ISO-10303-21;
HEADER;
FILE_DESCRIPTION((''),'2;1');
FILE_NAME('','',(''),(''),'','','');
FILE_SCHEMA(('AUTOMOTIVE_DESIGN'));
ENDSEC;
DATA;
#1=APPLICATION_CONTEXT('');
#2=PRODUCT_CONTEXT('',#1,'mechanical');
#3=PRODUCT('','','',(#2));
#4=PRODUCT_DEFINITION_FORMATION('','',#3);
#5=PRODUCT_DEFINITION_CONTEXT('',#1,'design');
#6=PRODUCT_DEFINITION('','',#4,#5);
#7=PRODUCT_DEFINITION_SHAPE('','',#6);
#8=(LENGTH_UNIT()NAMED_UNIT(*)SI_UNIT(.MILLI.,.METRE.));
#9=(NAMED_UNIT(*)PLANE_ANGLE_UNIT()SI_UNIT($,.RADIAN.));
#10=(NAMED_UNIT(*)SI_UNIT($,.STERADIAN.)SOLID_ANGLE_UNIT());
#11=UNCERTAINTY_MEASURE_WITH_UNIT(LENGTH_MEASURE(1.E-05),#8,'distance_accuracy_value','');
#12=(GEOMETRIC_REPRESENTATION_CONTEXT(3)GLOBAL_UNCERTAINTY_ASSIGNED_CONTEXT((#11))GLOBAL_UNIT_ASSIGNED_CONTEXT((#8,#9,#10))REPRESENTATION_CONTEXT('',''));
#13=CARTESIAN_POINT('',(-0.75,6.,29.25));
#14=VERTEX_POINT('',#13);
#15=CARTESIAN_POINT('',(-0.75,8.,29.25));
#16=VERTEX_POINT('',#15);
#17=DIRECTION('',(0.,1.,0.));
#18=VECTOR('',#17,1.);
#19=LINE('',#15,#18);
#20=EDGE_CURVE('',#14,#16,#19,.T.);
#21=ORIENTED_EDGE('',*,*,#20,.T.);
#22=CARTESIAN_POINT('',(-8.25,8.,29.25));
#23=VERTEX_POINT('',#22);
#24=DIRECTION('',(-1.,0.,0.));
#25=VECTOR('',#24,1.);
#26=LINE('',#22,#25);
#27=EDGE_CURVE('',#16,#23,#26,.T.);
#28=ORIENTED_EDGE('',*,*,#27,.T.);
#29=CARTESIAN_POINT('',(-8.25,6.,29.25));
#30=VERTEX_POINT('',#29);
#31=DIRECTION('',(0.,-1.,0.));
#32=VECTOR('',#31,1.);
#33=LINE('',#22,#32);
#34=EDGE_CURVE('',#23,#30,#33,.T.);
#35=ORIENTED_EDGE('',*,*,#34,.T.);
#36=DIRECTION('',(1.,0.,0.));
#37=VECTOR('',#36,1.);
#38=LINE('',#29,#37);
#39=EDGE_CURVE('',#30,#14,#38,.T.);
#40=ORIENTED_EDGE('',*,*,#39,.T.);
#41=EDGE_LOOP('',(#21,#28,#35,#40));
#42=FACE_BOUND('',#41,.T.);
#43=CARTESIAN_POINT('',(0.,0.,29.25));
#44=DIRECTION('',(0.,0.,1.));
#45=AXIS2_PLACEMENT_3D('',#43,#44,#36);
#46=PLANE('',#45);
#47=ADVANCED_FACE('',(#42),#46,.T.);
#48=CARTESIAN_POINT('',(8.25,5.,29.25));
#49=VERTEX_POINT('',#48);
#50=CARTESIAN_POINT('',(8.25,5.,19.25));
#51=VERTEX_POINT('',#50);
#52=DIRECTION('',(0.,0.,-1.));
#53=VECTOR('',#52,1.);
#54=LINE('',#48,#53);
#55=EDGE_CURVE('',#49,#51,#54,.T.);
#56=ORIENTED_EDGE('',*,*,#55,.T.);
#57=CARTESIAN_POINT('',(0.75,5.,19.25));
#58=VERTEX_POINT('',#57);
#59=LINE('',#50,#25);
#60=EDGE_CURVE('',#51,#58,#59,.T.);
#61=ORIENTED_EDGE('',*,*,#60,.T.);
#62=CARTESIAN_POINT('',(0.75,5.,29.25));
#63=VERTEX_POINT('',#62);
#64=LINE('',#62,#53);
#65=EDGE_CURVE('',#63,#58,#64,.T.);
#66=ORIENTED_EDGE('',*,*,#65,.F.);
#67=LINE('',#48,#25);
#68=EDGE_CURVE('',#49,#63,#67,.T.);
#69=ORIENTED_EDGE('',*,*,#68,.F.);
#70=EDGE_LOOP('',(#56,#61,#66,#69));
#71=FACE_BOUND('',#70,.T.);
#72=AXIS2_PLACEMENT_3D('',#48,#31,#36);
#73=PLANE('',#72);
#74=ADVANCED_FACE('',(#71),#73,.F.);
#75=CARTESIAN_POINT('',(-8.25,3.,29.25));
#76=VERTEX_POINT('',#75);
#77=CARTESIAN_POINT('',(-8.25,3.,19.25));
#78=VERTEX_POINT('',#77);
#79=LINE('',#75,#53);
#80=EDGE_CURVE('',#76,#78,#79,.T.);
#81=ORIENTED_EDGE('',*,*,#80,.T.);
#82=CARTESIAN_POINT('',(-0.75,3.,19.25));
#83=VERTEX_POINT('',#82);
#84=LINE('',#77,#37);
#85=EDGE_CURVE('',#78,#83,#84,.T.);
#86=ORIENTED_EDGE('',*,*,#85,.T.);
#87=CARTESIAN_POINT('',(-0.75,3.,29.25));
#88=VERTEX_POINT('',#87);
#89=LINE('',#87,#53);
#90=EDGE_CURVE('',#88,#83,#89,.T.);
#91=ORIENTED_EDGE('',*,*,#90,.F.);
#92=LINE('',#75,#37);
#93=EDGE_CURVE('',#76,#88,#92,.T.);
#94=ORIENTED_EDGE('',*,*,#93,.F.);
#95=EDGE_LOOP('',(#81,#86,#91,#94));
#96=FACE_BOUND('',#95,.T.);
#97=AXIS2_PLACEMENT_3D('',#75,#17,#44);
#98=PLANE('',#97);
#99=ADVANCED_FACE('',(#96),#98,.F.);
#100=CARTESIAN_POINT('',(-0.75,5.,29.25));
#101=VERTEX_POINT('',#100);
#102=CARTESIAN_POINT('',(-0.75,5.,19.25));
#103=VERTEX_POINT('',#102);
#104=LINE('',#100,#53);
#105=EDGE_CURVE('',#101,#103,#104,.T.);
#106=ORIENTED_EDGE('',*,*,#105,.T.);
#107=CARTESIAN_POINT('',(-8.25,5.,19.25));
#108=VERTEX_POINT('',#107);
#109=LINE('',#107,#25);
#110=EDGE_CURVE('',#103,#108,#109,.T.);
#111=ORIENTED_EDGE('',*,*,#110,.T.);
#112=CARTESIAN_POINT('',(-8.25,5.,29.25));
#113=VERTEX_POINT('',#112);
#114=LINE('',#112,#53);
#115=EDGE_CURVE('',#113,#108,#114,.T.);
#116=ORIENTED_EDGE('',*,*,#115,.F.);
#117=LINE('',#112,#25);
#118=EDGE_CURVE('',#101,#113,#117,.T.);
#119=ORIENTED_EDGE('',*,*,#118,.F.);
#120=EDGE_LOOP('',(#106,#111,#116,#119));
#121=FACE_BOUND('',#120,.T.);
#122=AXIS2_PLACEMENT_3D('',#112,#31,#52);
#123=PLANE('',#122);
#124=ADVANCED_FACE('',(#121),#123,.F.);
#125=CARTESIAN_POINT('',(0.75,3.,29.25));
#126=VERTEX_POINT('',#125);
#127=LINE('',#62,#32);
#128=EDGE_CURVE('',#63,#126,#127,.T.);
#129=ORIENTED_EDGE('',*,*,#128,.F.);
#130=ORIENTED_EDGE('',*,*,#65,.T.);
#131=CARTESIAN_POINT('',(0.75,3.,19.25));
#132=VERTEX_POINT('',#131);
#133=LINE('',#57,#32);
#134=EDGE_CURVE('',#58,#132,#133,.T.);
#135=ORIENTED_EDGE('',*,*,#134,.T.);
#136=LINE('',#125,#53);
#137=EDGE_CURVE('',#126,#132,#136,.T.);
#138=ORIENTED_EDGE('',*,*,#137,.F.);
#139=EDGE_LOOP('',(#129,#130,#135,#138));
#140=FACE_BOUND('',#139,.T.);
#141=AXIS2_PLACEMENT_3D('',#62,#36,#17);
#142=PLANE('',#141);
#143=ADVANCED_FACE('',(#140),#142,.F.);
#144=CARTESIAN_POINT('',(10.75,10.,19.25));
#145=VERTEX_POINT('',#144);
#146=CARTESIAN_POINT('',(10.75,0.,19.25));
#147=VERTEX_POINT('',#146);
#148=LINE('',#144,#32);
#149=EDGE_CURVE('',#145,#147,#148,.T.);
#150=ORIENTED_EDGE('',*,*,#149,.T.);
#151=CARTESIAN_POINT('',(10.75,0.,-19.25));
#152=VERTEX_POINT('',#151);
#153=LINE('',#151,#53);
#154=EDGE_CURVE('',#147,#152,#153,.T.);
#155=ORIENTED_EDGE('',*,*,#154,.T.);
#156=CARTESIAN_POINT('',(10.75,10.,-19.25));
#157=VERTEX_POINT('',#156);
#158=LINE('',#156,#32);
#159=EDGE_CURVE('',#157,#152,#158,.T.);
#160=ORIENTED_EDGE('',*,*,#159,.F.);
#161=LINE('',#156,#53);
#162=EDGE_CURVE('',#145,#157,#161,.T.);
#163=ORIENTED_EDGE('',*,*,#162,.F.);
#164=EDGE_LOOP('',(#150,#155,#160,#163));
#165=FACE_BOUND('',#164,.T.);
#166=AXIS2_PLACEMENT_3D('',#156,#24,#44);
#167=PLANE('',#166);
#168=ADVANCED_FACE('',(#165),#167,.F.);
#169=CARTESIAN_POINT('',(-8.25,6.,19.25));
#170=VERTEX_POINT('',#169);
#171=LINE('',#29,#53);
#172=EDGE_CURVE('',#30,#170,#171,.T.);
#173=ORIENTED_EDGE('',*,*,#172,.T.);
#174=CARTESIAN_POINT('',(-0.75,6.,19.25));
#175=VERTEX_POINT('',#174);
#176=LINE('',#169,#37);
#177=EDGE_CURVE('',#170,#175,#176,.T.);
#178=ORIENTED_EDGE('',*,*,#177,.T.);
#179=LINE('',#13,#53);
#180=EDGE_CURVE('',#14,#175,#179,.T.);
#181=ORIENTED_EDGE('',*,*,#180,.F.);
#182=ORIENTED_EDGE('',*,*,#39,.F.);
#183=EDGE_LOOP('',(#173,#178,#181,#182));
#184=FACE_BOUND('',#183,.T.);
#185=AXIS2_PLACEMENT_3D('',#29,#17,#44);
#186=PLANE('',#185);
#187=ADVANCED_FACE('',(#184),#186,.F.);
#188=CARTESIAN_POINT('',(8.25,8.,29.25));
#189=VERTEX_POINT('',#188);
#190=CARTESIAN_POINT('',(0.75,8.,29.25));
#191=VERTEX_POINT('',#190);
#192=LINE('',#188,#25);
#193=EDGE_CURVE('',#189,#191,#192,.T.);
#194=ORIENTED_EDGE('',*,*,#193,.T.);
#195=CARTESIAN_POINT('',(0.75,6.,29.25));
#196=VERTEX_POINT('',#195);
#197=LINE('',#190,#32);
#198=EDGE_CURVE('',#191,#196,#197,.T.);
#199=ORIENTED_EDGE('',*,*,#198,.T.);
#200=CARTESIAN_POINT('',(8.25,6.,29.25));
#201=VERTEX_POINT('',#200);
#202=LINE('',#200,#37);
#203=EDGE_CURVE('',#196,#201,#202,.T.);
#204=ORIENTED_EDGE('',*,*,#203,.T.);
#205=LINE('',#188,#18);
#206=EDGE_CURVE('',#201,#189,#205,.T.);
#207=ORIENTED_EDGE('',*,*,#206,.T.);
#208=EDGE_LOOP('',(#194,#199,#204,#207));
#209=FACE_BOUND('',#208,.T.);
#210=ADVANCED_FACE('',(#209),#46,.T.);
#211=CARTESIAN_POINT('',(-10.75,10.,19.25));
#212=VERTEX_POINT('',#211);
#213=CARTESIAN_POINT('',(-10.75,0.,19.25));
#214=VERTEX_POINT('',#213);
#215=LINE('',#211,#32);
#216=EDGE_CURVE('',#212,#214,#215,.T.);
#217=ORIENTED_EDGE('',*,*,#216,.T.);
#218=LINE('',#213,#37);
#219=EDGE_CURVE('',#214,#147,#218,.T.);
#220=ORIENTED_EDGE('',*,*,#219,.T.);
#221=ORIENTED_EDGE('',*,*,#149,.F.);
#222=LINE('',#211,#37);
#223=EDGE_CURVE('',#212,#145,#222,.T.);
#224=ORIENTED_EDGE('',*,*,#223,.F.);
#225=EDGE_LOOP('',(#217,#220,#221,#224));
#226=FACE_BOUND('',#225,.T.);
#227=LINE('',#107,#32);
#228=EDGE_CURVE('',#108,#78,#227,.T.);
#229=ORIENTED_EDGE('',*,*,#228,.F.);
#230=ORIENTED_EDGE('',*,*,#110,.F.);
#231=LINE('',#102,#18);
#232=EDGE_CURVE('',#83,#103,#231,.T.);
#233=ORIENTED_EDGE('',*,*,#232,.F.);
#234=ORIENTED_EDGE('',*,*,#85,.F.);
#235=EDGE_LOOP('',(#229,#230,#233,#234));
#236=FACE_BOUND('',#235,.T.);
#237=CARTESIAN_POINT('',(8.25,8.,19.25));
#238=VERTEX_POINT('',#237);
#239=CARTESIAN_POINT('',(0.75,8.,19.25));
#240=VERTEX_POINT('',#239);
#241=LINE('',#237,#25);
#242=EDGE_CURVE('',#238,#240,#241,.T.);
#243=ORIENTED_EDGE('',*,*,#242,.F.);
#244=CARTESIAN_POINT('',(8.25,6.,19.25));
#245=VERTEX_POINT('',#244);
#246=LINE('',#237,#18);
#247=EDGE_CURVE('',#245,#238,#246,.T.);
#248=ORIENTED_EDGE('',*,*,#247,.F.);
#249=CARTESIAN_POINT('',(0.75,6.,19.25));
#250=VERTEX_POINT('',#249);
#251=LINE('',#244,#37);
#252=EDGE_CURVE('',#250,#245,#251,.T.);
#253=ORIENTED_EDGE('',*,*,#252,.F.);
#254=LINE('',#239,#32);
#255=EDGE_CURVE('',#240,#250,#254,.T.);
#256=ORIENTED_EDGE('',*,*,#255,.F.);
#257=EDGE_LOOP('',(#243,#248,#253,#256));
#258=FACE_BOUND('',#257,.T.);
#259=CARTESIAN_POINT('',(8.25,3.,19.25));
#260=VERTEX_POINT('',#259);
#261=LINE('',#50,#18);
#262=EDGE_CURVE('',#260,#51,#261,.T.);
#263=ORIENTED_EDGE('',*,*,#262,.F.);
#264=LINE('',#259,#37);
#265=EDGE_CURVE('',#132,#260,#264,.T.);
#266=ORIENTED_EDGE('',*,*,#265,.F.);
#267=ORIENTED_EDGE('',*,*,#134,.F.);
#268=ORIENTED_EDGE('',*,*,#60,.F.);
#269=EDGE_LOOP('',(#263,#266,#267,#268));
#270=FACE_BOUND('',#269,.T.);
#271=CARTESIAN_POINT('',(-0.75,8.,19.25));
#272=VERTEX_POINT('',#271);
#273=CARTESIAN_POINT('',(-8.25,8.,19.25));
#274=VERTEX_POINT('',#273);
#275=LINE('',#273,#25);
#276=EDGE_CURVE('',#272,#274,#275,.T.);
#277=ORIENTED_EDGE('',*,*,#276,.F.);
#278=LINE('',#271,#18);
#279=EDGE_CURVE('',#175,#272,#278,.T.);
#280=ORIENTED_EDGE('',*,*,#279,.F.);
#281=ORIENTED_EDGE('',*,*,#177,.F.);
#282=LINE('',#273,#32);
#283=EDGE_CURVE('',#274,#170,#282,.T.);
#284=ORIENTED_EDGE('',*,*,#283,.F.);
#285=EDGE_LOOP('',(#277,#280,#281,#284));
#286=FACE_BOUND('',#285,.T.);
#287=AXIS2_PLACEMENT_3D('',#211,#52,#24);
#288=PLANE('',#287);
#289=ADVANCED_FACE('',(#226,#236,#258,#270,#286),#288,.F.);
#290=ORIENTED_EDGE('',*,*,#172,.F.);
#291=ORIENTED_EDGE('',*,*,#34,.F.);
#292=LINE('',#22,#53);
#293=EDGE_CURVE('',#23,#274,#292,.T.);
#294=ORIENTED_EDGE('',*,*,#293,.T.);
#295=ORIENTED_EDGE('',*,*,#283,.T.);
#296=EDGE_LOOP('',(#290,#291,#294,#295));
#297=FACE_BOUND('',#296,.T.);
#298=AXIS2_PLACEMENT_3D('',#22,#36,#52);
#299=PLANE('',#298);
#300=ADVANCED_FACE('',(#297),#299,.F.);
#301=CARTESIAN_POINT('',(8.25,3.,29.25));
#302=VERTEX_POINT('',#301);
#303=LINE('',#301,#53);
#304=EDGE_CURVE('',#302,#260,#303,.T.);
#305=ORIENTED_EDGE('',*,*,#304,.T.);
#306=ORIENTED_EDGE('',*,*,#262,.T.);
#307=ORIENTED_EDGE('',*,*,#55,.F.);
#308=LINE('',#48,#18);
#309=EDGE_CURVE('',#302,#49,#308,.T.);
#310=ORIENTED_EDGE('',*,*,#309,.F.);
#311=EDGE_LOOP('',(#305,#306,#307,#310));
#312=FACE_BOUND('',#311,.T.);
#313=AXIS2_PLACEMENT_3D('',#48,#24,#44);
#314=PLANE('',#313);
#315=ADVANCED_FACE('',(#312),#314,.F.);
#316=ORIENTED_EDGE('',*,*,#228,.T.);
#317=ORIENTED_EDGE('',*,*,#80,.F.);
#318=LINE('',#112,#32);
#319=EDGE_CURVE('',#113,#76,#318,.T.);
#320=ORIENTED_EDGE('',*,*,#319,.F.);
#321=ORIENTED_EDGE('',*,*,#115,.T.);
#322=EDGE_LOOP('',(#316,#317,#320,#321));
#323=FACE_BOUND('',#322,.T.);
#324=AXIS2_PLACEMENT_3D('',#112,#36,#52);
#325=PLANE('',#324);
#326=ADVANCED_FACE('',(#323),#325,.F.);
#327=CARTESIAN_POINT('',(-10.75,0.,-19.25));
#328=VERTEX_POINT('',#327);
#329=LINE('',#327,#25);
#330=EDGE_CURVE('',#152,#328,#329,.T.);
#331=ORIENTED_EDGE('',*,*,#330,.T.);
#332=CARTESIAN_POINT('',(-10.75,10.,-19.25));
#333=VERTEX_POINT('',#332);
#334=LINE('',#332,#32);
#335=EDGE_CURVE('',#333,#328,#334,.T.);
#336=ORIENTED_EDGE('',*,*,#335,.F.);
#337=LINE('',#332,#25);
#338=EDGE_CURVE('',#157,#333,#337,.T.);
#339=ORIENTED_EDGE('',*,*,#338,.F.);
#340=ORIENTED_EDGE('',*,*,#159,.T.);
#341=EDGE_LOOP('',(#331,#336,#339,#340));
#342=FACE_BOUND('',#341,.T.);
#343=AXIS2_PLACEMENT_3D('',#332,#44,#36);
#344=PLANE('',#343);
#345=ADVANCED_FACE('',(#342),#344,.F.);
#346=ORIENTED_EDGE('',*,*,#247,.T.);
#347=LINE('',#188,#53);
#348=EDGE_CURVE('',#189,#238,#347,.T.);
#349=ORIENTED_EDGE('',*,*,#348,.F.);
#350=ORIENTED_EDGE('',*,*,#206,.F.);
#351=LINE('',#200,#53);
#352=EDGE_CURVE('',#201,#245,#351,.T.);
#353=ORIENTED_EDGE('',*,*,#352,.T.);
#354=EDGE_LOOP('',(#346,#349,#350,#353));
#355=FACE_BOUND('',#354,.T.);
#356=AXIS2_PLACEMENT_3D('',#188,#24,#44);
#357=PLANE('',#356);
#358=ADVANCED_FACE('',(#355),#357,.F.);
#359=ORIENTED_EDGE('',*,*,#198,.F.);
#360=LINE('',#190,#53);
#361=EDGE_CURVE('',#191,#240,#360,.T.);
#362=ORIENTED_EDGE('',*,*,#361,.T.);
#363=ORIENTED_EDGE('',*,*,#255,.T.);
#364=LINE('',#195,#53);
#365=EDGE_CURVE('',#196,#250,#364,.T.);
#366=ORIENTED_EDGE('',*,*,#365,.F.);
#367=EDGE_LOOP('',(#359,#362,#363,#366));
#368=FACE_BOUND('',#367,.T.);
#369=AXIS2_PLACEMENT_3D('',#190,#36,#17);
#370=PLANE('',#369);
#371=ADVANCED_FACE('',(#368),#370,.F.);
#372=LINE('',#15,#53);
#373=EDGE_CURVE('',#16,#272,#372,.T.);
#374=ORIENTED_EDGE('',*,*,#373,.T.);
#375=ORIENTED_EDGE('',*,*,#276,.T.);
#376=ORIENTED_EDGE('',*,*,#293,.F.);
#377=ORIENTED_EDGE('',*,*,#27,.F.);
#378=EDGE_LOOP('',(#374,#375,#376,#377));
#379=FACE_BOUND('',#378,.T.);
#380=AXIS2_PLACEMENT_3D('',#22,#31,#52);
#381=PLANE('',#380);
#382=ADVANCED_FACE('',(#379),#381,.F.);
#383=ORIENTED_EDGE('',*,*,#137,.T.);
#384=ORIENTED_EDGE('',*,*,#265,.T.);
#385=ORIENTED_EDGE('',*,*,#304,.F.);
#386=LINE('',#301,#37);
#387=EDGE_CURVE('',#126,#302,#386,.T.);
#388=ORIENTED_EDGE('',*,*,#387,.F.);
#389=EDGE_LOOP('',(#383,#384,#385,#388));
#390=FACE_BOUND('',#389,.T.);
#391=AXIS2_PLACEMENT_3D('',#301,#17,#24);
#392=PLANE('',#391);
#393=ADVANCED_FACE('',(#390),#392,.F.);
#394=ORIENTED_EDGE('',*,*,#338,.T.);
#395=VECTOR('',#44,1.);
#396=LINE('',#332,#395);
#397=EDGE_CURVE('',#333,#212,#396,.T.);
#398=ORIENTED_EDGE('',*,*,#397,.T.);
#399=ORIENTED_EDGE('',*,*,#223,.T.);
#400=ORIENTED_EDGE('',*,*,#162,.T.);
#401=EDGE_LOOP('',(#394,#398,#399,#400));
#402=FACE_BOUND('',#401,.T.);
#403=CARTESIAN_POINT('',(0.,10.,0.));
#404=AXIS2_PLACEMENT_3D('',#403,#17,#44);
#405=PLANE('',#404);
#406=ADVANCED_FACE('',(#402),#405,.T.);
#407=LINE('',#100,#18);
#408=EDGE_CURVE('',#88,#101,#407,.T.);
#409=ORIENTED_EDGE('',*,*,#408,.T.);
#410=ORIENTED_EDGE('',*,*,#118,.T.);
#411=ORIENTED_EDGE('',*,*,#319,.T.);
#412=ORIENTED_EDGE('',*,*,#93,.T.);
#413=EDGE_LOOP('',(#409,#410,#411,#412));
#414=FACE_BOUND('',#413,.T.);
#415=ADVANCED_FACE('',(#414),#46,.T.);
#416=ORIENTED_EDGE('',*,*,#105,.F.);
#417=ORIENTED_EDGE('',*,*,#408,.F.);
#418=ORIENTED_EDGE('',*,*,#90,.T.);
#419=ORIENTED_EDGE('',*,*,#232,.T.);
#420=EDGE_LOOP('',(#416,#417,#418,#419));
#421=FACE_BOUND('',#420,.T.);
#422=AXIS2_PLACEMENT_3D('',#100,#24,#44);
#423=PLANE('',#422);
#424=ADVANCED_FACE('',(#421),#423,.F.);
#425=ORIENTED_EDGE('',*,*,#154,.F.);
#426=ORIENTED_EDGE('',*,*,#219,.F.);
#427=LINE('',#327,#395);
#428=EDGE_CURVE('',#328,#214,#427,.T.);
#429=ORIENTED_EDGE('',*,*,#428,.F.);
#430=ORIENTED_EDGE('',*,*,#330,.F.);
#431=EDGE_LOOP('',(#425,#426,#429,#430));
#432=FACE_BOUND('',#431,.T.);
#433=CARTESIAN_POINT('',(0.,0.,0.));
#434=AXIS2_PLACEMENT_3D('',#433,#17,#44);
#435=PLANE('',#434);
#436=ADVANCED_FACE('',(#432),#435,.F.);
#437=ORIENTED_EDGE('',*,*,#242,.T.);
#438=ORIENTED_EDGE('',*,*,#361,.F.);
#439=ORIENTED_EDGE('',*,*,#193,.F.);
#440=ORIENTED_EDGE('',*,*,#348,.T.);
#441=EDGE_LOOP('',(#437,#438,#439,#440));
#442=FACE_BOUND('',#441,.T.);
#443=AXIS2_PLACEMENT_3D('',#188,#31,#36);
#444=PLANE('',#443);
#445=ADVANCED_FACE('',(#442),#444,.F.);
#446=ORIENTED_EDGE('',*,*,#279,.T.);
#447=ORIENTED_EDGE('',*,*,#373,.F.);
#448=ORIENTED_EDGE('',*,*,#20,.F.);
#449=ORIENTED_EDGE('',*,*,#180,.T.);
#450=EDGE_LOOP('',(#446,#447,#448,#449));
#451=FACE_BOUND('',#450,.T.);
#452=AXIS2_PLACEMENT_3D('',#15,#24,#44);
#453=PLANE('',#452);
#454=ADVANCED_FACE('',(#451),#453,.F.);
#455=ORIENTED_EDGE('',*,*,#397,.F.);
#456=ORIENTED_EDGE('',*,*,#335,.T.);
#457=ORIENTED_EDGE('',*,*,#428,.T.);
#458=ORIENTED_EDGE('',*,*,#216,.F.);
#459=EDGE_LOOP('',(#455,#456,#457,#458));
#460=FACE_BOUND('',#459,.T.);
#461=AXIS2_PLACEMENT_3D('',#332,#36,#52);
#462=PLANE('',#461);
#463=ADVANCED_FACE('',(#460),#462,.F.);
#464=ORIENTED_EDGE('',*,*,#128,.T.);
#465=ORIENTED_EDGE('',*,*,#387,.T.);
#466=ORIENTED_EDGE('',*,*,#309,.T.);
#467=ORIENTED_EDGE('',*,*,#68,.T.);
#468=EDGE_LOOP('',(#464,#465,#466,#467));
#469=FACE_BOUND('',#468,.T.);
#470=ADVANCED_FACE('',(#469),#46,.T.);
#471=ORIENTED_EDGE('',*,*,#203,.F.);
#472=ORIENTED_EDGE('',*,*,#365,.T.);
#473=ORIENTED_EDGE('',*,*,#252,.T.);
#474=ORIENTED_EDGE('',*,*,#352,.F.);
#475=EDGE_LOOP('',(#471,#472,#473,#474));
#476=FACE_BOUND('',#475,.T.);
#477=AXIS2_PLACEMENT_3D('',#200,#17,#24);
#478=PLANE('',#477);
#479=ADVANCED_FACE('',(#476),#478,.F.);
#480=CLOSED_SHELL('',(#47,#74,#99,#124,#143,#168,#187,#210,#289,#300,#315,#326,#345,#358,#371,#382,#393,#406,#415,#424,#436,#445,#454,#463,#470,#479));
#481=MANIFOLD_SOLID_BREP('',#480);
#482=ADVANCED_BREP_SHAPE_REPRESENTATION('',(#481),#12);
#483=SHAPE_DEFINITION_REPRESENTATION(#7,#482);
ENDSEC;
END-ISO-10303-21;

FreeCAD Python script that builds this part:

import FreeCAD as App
import Part
import Sketcher
from FreeCAD import Vector


def add_polygon(sketch, points):
    """Adds a closed chain of lines whose ends are joined by coincident constraints."""
    first, n = sketch.GeometryCount, len(points)
    for a, b in zip(points, points[1:] + points[:1]):
        sketch.addGeometry(Part.LineSegment(App.Vector(*a, 0), App.Vector(*b, 0)), False)
    for i in range(n):
        sketch.addConstraint(Sketcher.Constraint("Coincident", first + i, 2, first + (i + 1) % n, 1))

doc = App.newDocument("Part")
body = doc.addObject("PartDesign::Body", "Body")

sketch1 = body.newObject("Sketcher::SketchObject", "Sketch")
sketch1.AttachmentSupport = (doc.getObject("XZ_Plane"), [""])
sketch1.MapMode = "FlatFace"
add_polygon(sketch1, [(-11, -19), (-11, 19), (11, 19), (11, -19)])
sketch1.addConstraint(Sketcher.Constraint("Vertical", 0))
sketch1.addConstraint(Sketcher.Constraint("Horizontal", 1))
sketch1.addConstraint(Sketcher.Constraint("Vertical", 2))
sketch1.addConstraint(Sketcher.Constraint("Horizontal", 3))
sketch1.addConstraint(Sketcher.Constraint("Symmetric", 0, 2, 2, 2, -1, 1))
sketch1.addConstraint(Sketcher.Constraint("DistanceX", 1, 1, 1, 2, 21.5))
sketch1.addConstraint(Sketcher.Constraint("DistanceY", 0, 1, 0, 2, 38.5))
pad1 = body.newObject("PartDesign::Pad", "Pad")
pad1.Profile = sketch1
pad1.Length = 10
pad1.Reversed = True

sketch2 = body.newObject("Sketcher::SketchObject", "Sketch001")
sketch2.AttachmentSupport = (doc.getObject("XY_Plane"), [""])
sketch2.MapMode = "FlatFace"
sketch2.AttachmentOffset = App.Placement(Vector(0, 0, 19.25), App.Rotation())
add_polygon(sketch2, [(-8.2, 8), (-8.2, 6), (-0.8, 6), (-0.8, 8)])
add_polygon(sketch2, [(0.8, 5), (0.8, 3), (8.2, 3), (8.2, 5)])
add_polygon(sketch2, [(-8.2, 5), (-8.2, 3), (-0.8, 3), (-0.8, 5)])
add_polygon(sketch2, [(0.8, 8), (0.8, 6), (8.2, 6), (8.2, 8)])
sketch2.addConstraint(Sketcher.Constraint("Vertical", 0))
sketch2.addConstraint(Sketcher.Constraint("Horizontal", 1))
sketch2.addConstraint(Sketcher.Constraint("Vertical", 2))
sketch2.addConstraint(Sketcher.Constraint("Horizontal", 3))
sketch2.addConstraint(Sketcher.Constraint("Vertical", 4))
sketch2.addConstraint(Sketcher.Constraint("Horizontal", 5))
sketch2.addConstraint(Sketcher.Constraint("Vertical", 6))
sketch2.addConstraint(Sketcher.Constraint("Horizontal", 7))
sketch2.addConstraint(Sketcher.Constraint("Vertical", 8))
sketch2.addConstraint(Sketcher.Constraint("Horizontal", 9))
sketch2.addConstraint(Sketcher.Constraint("Vertical", 10))
sketch2.addConstraint(Sketcher.Constraint("Horizontal", 11))
sketch2.addConstraint(Sketcher.Constraint("Vertical", 12))
sketch2.addConstraint(Sketcher.Constraint("Horizontal", 13))
sketch2.addConstraint(Sketcher.Constraint("Vertical", 14))
sketch2.addConstraint(Sketcher.Constraint("Horizontal", 15))
sketch2.addConstraint(Sketcher.Constraint("Symmetric", 5, 2, 8, 2, -2))
sketch2.addConstraint(Sketcher.Constraint("Symmetric", 7, 2, 10, 2, -2))
sketch2.addConstraint(Sketcher.Constraint("Symmetric", 1, 2, 12, 2, -2))
sketch2.addConstraint(Sketcher.Constraint("Symmetric", 3, 2, 14, 2, -2))
sketch2.addConstraint(Sketcher.Constraint("Vertical", 3, 2, 8, 2))
sketch2.addConstraint(Sketcher.Constraint("Vertical", 2, 2, 9, 2))
sketch2.addConstraint(Sketcher.Constraint("Equal", 2, 4))
sketch2.addConstraint(Sketcher.Constraint("DistanceY", 0, 2, 0, 1, 2.0))
sketch2.addConstraint(Sketcher.Constraint("DistanceX", 1, 1, 1, 2, 7.5))
sketch2.addConstraint(Sketcher.Constraint("DistanceY", -1, 1, 0, 2, 6.0))
sketch2.addConstraint(Sketcher.Constraint("DistanceY", -1, 1, 4, 2, 3.0))
sketch2.addConstraint(Sketcher.Constraint("DistanceX", 0, 2, 4, 2, 9.0))
pad2 = body.newObject("PartDesign::Pad", "Pad001")
pad2.Profile = sketch2
pad2.Length = 10

doc.recompute()
